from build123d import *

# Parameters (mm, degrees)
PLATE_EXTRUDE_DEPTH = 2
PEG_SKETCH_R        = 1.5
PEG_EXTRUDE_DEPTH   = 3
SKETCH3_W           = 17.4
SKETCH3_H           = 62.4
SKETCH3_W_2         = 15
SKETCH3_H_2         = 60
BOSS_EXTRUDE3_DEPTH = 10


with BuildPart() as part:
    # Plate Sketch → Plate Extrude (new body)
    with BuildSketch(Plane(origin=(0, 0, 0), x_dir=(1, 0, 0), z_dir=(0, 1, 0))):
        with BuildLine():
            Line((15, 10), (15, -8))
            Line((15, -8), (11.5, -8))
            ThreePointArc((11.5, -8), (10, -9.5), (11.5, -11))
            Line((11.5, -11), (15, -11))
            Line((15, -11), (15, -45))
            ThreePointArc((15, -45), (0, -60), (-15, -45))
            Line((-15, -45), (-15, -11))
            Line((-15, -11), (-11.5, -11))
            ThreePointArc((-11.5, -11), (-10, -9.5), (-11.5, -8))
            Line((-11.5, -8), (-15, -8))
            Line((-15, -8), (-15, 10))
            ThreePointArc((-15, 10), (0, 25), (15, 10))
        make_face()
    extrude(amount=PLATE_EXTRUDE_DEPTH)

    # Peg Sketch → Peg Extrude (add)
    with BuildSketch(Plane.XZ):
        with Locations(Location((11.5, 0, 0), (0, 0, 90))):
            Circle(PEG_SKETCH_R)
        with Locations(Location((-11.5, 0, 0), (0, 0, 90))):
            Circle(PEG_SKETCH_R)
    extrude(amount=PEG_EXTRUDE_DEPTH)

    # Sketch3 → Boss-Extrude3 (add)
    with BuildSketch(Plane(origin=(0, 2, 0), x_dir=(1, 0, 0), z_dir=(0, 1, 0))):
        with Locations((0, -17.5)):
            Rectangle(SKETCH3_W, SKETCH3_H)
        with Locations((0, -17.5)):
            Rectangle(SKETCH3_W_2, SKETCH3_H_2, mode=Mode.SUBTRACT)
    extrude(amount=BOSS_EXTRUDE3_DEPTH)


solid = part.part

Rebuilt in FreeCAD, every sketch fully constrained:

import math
import FreeCAD as App
import Part
import Sketcher

V = App.Vector

doc = App.newDocument("Part")
params = doc.addObject("Spreadsheet::Sheet", "Params")
for row, (alias, value) in enumerate([
    ("sketch1_radius", "15 mm"),
    ("sketch1_radius2", "1.5 mm"),
    ("sketch1_height", "18 mm"),
    ("sketch1_height2", "34 mm"),
    ("sketch1_width", "3.5 mm"),
    ("pad1_length", "2 mm"),
    ("sketch2_diameter", "3 mm"),
    ("pad2_length", "3 mm"),
    ("sketch3_width", "15 mm"),
    ("sketch3_height", "60 mm"),
    ("sketch3_width2", "17.4 mm"),
    ("sketch3_height2", "62.4 mm"),
    ("pad3_length", "10 mm"),
], start=1):
    params.set(f"A{row}", alias)
    params.set(f"B{row}", "=" + value)
    params.setAlias(f"B{row}", alias)

body = doc.addObject("PartDesign::Body", "Body")

sketch1 = body.newObject("Sketcher::SketchObject", "Sketch")
sketch1.AttachmentSupport = (doc.getObject("XZ_Plane"), [""])
sketch1.MapMode = "FlatFace"
sketch1.addGeometry(Part.LineSegment(V(15, 8, 0), V(15, -10, 0)), False)
sketch1.addGeometry(Part.ArcOfCircle(Part.Circle(V(0, -10, 0), V(0, 0, 1), 15), math.radians(180), math.radians(360)), False)
sketch1.addGeometry(Part.LineSegment(V(-15, -10, 0), V(-15, 8, 0)), False)
sketch1.addGeometry(Part.LineSegment(V(-15, 8, 0), V(-11.5, 8, 0)), False)
sketch1.addGeometry(Part.ArcOfCircle(Part.Circle(V(-11.5, 9.5, 0), V(0, 0, 1), 1.5), math.radians(-90), math.radians(90)), False)
sketch1.addGeometry(Part.LineSegment(V(-11.5, 11, 0), V(-15, 11, 0)), False)
sketch1.addGeometry(Part.LineSegment(V(-15, 11, 0), V(-15, 45, 0)), False)
sketch1.addGeometry(Part.ArcOfCircle(Part.Circle(V(0, 45, 0), V(0, 0, 1), 15), math.radians(0), math.radians(180)), False)
sketch1.addGeometry(Part.LineSegment(V(15, 45, 0), V(15, 11, 0)), False)
sketch1.addGeometry(Part.LineSegment(V(15, 11, 0), V(11.5, 11, 0)), False)
sketch1.addGeometry(Part.ArcOfCircle(Part.Circle(V(11.5, 9.5, 0), V(0, 0, 1), 1.5), math.radians(90), math.radians(270)), False)
sketch1.addGeometry(Part.LineSegment(V(11.5, 8, 0), V(15, 8, 0)), False)
sketch1.addConstraint(Sketcher.Constraint("Tangent", 0, 2, 1, 2))
sketch1.addConstraint(Sketcher.Constraint("Tangent", 1, 1, 2, 1))
sketch1.addConstraint(Sketcher.Constraint("Coincident", 2, 2, 3, 1))
sketch1.addConstraint(Sketcher.Constraint("Tangent", 3, 2, 4, 1))
sketch1.addConstraint(Sketcher.Constraint("Tangent", 4, 2, 5, 1))
sketch1.addConstraint(Sketcher.Constraint("Coincident", 5, 2, 6, 1))
sketch1.addConstraint(Sketcher.Constraint("Tangent", 6, 2, 7, 2))
sketch1.addConstraint(Sketcher.Constraint("Tangent", 7, 1, 8, 1))
sketch1.addConstraint(Sketcher.Constraint("Coincident", 8, 2, 9, 1))
sketch1.addConstraint(Sketcher.Constraint("Tangent", 9, 2, 10, 1))
sketch1.addConstraint(Sketcher.Constraint("Tangent", 10, 2, 11, 1))
sketch1.addConstraint(Sketcher.Constraint("Coincident", 11, 2, 0, 1))
sketch1.addConstraint(Sketcher.Constraint("Vertical", 0))
sketch1.addConstraint(Sketcher.Constraint("Vertical", 2))
sketch1.addConstraint(Sketcher.Constraint("Horizontal", 3))
sketch1.addConstraint(Sketcher.Constraint("Horizontal", 5))
sketch1.addConstraint(Sketcher.Constraint("Vertical", 6))
sketch1.addConstraint(Sketcher.Constraint("Vertical", 8))
sketch1.addConstraint(Sketcher.Constraint("Horizontal", 9))
sketch1.addConstraint(Sketcher.Constraint("Horizontal", 11))
sketch1.addConstraint(Sketcher.Constraint("Equal", 1, 7))
sketch1.addConstraint(Sketcher.Constraint("Equal", 4, 10))
sketch1.addConstraint(Sketcher.Constraint("Symmetric", 4, 3, 10, 3, -2))
sketch1.addConstraint(Sketcher.Constraint("PointOnObject", 1, 3, -2))
sketch1.addConstraint(Sketcher.Constraint("PointOnObject", 7, 3, -2))
sketch1.addConstraint(Sketcher.Constraint("Radius", 1, 15.0))
sketch1.addConstraint(Sketcher.Constraint("Radius", 4, 1.5))
sketch1.addConstraint(Sketcher.Constraint("DistanceY", 0, 2, 0, 1, 18.0))
sketch1.addConstraint(Sketcher.Constraint("DistanceY", 6, 1, 6, 2, 34.0))
sketch1.addConstraint(Sketcher.Constraint("DistanceX", 3, 1, 3, 2, 3.5))
sketch1.addConstraint(Sketcher.Constraint("DistanceY", 1, 3, -1, 1, 10.0))
sketch1.setExpression("Constraints[25]", "Params.sketch1_radius")
sketch1.setExpression("Constraints[26]", "Params.sketch1_radius2")
sketch1.setExpression("Constraints[27]", "Params.sketch1_height")
sketch1.setExpression("Constraints[28]", "Params.sketch1_height2")
sketch1.setExpression("Constraints[29]", "Params.sketch1_width")
pad1 = body.newObject("PartDesign::Pad", "Pad")
pad1.Profile = sketch1
pad1.setExpression("Length", "Params.pad1_length")
pad1.Reversed = True

sketch2 = body.newObject("Sketcher::SketchObject", "Sketch001")
sketch2.AttachmentSupport = (doc.getObject("XZ_Plane"), [""])
sketch2.MapMode = "FlatFace"
sketch2.addGeometry(Part.Circle(V(11.5, 0, 0), V(0, 0, 1), 1.5), False)
sketch2.addGeometry(Part.Circle(V(-11.5, 0, 0), V(0, 0, 1), 1.5), False)
sketch2.addConstraint(Sketcher.Constraint("Equal", 0, 1))
sketch2.addConstraint(Sketcher.Constraint("Symmetric", 0, 3, 1, 3, -1, 1))
sketch2.addConstraint(Sketcher.Constraint("PointOnObject", 0, 3, -1))
sketch2.addConstraint(Sketcher.Constraint("Diameter", 0, 3.0))
sketch2.addConstraint(Sketcher.Constraint("DistanceX", 1, 3, 0, 3, 23.0))
sketch2.setExpression("Constraints[3]", "Params.sketch2_diameter")
pad2 = body.newObject("PartDesign::Pad", "Pad001")
pad2.Profile = sketch2
pad2.setExpression("Length", "Params.pad2_length")

sketch3 = body.newObject("Sketcher::SketchObject", "Sketch002")
sketch3.AttachmentSupport = (doc.getObject("XZ_Plane"), [""])
sketch3.MapMode = "FlatFace"
sketch3.AttachmentOffset = App.Placement(V(0, 0, -2), App.Rotation())
sketch3.addGeometry(Part.LineSegment(V(-9, -14, 0), V(-9, 49, 0)), False)
sketch3.addGeometry(Part.LineSegment(V(-9, 49, 0), V(9, 49, 0)), False)
sketch3.addGeometry(Part.LineSegment(V(9, 49, 0), V(9, -14, 0)), False)
sketch3.addGeometry(Part.LineSegment(V(9, -14, 0), V(-9, -14, 0)), False)
sketch3.addGeometry(Part.LineSegment(V(8, 48, 0), V(-8, 48, 0)), False)
sketch3.addGeometry(Part.LineSegment(V(-8, 48, 0), V(-8, -12, 0)), False)
sketch3.addGeometry(Part.LineSegment(V(-8, -12, 0), V(8, -12, 0)), False)
sketch3.addGeometry(Part.LineSegment(V(8, -12, 0), V(8, 48, 0)), False)
sketch3.addConstraint(Sketcher.Constraint("Coincident", 0, 2, 1, 1))
sketch3.addConstraint(Sketcher.Constraint("Coincident", 1, 2, 2, 1))
sketch3.addConstraint(Sketcher.Constraint("Coincident", 2, 2, 3, 1))
sketch3.addConstraint(Sketcher.Constraint("Coincident", 3, 2, 0, 1))
sketch3.addConstraint(Sketcher.Constraint("Coincident", 4, 2, 5, 1))
sketch3.addConstraint(Sketcher.Constraint("Coincident", 5, 2, 6, 1))
sketch3.addConstraint(Sketcher.Constraint("Coincident", 6, 2, 7, 1))
sketch3.addConstraint(Sketcher.Constraint("Coincident", 7, 2, 4, 1))
sketch3.addConstraint(Sketcher.Constraint("Vertical", 0))
sketch3.addConstraint(Sketcher.Constraint("Horizontal", 1))
sketch3.addConstraint(Sketcher.Constraint("Vertical", 2))
sketch3.addConstraint(Sketcher.Constraint("Horizontal", 3))
sketch3.addConstraint(Sketcher.Constraint("Horizontal", 4))
sketch3.addConstraint(Sketcher.Constraint("Vertical", 5))
sketch3.addConstraint(Sketcher.Constraint("Horizontal", 6))
sketch3.addConstraint(Sketcher.Constraint("Vertical", 7))
sketch3.addConstraint(Sketcher.Constraint("DistanceX", 4, 2, 4, 1, 15.0))
sketch3.addConstraint(Sketcher.Constraint("DistanceY", 5, 2, 5, 1, 60.0))
sketch3.addConstraint(Sketcher.Constraint("DistanceX", 1, 1, 1, 2, 17.4))
sketch3.addConstraint(Sketcher.Constraint("DistanceY", 0, 1, 0, 2, 62.4))
sketch3.addConstraint(Sketcher.Constraint("DistanceX", 0, 2, -1, 1, 8.7))
sketch3.addConstraint(Sketcher.Constraint("DistanceY", -1, 1, 0, 2, 48.7))
sketch3.addConstraint(Sketcher.Constraint("DistanceX", 4, 2, -1, 1, 7.5))
sketch3.addConstraint(Sketcher.Constraint("DistanceY", -1, 1, 4, 2, 47.5))
sketch3.setExpression("Constraints[16]", "Params.sketch3_width")
sketch3.setExpression("Constraints[17]", "Params.sketch3_height")
sketch3.setExpression("Constraints[18]", "Params.sketch3_width2")
sketch3.setExpression("Constraints[19]", "Params.sketch3_height2")
pad3 = body.newObject("PartDesign::Pad", "Pad002")
pad3.Profile = sketch3
pad3.setExpression("Length", "Params.pad3_length")
pad3.Reversed = True

doc.recompute()
